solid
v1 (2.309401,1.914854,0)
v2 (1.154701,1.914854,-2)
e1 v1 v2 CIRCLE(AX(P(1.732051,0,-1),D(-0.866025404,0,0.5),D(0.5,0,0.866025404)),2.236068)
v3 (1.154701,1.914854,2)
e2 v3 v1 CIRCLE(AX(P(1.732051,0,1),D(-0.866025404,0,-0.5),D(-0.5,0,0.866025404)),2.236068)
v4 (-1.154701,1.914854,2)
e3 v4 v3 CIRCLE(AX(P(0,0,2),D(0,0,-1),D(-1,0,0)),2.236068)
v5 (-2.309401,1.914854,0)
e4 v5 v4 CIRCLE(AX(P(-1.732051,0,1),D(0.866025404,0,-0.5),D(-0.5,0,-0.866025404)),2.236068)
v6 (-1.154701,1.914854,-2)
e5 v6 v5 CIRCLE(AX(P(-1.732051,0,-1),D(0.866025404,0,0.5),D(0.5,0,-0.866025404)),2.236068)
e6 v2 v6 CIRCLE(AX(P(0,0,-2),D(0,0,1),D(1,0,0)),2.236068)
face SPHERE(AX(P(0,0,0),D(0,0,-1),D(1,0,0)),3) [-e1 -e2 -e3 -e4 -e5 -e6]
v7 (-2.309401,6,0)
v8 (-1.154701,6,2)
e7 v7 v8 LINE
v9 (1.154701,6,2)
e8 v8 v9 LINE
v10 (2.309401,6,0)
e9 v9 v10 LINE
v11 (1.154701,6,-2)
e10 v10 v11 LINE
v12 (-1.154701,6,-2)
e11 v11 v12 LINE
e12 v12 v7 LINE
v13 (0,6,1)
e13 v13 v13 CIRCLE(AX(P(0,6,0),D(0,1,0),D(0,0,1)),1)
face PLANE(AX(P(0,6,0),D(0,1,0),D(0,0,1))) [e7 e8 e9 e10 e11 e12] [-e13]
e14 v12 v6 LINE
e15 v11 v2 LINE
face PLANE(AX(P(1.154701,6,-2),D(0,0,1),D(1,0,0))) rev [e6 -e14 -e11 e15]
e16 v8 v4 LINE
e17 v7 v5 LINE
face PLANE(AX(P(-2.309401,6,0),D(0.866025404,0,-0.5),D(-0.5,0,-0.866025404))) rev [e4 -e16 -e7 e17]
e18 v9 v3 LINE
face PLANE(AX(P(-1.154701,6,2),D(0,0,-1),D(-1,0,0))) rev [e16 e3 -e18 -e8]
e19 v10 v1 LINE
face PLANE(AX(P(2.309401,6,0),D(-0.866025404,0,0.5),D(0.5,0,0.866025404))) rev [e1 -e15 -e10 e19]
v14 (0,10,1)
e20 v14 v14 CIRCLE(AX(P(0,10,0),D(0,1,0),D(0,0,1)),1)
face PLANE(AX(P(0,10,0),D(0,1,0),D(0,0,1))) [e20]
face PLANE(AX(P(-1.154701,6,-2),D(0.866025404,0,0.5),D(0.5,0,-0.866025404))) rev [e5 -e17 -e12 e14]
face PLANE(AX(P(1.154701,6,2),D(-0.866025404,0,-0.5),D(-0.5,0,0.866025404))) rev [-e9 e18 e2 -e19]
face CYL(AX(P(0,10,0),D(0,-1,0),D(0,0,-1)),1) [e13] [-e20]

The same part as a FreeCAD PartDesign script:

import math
import FreeCAD as App
import Part
import Sketcher
Q = App.Units.Quantity


def add_polygon(sketch, points):
    """Adds a closed chain of lines whose ends are joined by coincident constraints."""
    first, n = sketch.GeometryCount, len(points)
    for a, b in zip(points, points[1:] + points[:1]):
        sketch.addGeometry(Part.LineSegment(App.Vector(*a, 0), App.Vector(*b, 0)), False)
    for i in range(n):
        sketch.addConstraint(Sketcher.Constraint("Coincident", first + i, 2, first + (i + 1) % n, 1))

doc = App.newDocument("Part")
body = doc.addObject("PartDesign::Body", "Body")

sketch1 = body.newObject("Sketcher::SketchObject", "Sketch")
sketch1.AttachmentSupport = (doc.getObject("XZ_Plane"), [""])
sketch1.MapMode = "FlatFace"
sketch1.addGeometry([
    Part.LineSegment(App.Vector(0, -3, 0), App.Vector(0, 3, 0)),
    Part.ArcOfCircle(Part.Circle(App.Vector(0, 0, 0), App.Vector(0, 0, 1), 3), math.radians(-90), math.radians(90)),
], False)
sketch1.addConstraint([
    Sketcher.Constraint("Coincident", 0, 1, 1, 1),
    Sketcher.Constraint("Coincident", 1, 2, 0, 2),
    Sketcher.Constraint("Vertical", 0),
    Sketcher.Constraint("Coincident", 1, 3, -1, 1),
    Sketcher.Constraint("PointOnObject", 0, 1, -2),
    Sketcher.Constraint("Radius", 1, Q("3 mm")),
])
revolution = body.newObject("PartDesign::Revolution", "Revolution")
revolution.Profile = sketch1
revolution.ReferenceAxis = (sketch1, ["V_Axis"])
revolution.Angle = 360

sketch2 = body.newObject("Sketcher::SketchObject", "Sketch001")
sketch2.AttachmentSupport = (doc.getObject("XZ_Plane"), [""])
sketch2.MapMode = "FlatFace"
sketch2.addGeometry(Part.Circle(App.Vector(0, 0, 0), App.Vector(0, 0, 1), 1), False)
sketch2.addConstraint([
    Sketcher.Constraint("Coincident", 0, 3, -1, 1),
    Sketcher.Constraint("Diameter", 0, Q("2 mm")),
])
pad1 = body.newObject("PartDesign::Pad", "Pad")
pad1.Profile = sketch2
pad1.Length = 10
pad1.Reversed = True

sketch3 = body.newObject("Sketcher::SketchObject", "Sketch002")
sketch3.AttachmentSupport = (doc.getObject("XZ_Plane"), [""])
sketch3.MapMode = "FlatFace"
add_polygon(sketch3, [(2.309401, 0), (1.154701, -2), (-1.154701, -2), (-2.309401, 0), (-1.154701, 2), (1.154701, 2)])
sketch3.addConstraint([
    Sketcher.Constraint("Horizontal", 1),
    Sketcher.Constraint("Horizontal", 4),
    Sketcher.Constraint("Symmetric", 0, 2, 3, 2, -1, 1),
    Sketcher.Constraint("Symmetric", 2, 2, 5, 2, -1, 1),
    Sketcher.Constraint("PointOnObject", 2, 2, -1),
    Sketcher.Constraint("Parallel", 2, 5),
    Sketcher.Constraint("Vertical", 1, 2, 3, 2),
    Sketcher.Constraint("Angle", 0, Q("-120 deg")),
    Sketcher.Constraint("DistanceY", 0, 2, -1, 1, Q("2 mm")),
    Sketcher.Constraint("DistanceX", 1, 2, 1, 1, Q("2.309401 mm")),
])
pad2 = body.newObject("PartDesign::Pad", "Pad001")
pad2.Profile = sketch3
pad2.Length = 6
pad2.Reversed = True

doc.recompute()
